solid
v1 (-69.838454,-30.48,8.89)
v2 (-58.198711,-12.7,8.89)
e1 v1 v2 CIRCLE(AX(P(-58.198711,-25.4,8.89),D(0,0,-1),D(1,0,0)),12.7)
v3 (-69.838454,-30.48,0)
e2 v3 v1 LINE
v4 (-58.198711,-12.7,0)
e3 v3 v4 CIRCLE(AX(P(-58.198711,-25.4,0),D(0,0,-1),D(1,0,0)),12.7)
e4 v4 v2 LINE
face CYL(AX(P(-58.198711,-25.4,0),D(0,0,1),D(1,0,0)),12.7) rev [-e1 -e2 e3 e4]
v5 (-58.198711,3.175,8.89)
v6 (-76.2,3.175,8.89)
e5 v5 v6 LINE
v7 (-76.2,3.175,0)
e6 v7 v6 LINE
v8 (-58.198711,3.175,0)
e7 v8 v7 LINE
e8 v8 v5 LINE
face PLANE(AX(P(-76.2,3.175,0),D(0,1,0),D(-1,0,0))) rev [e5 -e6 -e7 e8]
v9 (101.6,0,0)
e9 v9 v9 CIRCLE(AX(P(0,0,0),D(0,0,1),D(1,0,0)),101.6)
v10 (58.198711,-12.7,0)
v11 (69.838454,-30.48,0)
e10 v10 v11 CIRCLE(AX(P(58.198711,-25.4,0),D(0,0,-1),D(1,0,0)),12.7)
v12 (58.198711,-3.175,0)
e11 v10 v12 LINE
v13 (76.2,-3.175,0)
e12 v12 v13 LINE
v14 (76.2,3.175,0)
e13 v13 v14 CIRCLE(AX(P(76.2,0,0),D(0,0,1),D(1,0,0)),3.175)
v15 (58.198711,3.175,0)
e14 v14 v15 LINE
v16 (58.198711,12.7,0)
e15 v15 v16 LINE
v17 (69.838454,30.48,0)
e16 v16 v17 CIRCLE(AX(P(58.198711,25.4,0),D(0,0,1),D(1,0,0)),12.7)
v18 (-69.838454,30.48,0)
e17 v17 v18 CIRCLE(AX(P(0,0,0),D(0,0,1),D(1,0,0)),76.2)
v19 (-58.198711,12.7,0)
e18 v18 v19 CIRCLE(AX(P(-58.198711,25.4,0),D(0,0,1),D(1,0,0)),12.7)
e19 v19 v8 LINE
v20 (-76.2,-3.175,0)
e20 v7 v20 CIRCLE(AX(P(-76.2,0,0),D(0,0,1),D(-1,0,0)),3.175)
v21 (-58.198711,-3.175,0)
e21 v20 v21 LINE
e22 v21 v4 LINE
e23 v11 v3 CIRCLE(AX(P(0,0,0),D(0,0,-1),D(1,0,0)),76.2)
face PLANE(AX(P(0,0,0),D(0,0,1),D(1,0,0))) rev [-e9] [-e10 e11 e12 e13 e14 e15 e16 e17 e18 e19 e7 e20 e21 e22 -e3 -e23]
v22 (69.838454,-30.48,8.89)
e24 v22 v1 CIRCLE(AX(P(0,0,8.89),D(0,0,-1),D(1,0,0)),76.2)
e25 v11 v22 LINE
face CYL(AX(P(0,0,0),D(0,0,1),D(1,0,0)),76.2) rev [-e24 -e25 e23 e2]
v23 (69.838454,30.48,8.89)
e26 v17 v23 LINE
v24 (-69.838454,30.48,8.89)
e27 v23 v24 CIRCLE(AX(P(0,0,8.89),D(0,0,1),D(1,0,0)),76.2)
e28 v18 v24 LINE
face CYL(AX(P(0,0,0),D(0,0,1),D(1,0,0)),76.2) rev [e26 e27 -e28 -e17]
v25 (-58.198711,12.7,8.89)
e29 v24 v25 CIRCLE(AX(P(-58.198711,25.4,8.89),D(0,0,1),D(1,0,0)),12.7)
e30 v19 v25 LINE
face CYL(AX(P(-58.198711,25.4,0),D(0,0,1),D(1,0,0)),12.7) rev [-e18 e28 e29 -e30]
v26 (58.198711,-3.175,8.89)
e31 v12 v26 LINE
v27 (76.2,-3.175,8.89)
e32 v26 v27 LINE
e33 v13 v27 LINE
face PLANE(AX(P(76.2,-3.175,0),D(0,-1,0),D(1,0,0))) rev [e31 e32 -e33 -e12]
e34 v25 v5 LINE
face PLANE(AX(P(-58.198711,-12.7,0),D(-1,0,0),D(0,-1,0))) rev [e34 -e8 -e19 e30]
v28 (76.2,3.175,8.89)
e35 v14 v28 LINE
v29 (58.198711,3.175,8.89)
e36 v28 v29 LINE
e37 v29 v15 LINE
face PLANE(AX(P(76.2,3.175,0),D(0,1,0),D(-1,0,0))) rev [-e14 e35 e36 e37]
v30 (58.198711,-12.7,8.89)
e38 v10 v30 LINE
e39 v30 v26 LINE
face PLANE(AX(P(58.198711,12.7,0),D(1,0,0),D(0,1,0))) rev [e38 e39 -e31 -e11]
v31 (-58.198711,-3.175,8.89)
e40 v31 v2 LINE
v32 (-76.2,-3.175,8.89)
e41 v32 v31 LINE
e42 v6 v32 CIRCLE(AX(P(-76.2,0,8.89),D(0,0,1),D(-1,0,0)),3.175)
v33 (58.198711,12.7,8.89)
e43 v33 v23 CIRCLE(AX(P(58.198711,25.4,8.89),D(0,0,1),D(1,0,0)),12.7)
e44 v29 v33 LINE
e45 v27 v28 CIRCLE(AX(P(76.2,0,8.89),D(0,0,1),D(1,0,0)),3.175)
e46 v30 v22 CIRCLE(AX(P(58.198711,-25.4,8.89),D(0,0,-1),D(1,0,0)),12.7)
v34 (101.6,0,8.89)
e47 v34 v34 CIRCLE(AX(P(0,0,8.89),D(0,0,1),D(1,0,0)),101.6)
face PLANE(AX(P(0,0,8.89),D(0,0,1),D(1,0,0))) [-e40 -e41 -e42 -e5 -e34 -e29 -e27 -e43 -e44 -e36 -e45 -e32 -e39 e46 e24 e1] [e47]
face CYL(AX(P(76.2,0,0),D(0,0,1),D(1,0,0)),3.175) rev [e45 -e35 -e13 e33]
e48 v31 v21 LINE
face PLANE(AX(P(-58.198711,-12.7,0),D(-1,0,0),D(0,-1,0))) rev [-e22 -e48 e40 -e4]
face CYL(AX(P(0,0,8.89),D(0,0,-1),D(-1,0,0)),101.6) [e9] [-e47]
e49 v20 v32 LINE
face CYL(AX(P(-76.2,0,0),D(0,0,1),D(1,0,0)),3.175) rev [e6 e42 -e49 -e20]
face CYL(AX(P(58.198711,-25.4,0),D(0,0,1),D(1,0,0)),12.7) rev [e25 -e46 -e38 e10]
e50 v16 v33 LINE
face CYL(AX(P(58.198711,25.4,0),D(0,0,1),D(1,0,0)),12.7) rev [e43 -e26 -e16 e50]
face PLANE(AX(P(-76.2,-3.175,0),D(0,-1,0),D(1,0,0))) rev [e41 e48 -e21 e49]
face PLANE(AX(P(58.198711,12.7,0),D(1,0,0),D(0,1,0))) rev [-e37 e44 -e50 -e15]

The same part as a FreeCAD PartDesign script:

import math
import FreeCAD as App
import Part
import Sketcher
from FreeCAD import Vector
Q = App.Units.Quantity

doc = App.newDocument("Part")
body = doc.addObject("PartDesign::Body", "Body")

# Sketch on XY plane
sketch1 = body.newObject("Sketcher::SketchObject", "Sketch")
sketch1.AttachmentSupport = (doc.getObject("XY_Plane"), [""])
sketch1.MapMode = "FlatFace"
sketch1.addGeometry(Part.Circle(Vector(0, 0, 0), Vector(0, 0, 1), 102), False)
sketch1.addConstraint([
    Sketcher.Constraint("Coincident", 0, 3, -1, 1),
    Sketcher.Constraint("Diameter", 0, Q("8 in")),
])
pad1 = body.newObject("PartDesign::Pad", "Pad")
pad1.Profile = sketch1
pad1.Length = Q("0.35 in")

# Sketch on XY plane
sketch2 = body.newObject("Sketcher::SketchObject", "Sketch001")
sketch2.AttachmentSupport = (doc.getObject("XY_Plane"), [""])
sketch2.MapMode = "FlatFace"
sketch2.AttachmentOffset = App.Placement(Vector(0, 0, 0.35 * 25.4), App.Rotation())
sketch2.addGeometry(Part.Circle(Vector(0, 0, 0), Vector(0, 0, 1), 25), False)
sketch2.addConstraint([
    Sketcher.Constraint("Coincident", 0, 3, -1, 1),
    Sketcher.Constraint("Diameter", 0, Q("2 in")),
])
pocket1 = body.newObject("PartDesign::Pocket", "Pocket")
pocket1.Profile = sketch2
pocket1.Type = "ThroughAll"

# Sketch on XY plane
sketch3 = body.newObject("Sketcher::SketchObject", "Sketch002")
sketch3.AttachmentSupport = (doc.getObject("XY_Plane"), [""])
sketch3.MapMode = "FlatFace"
sketch3.AttachmentOffset = App.Placement(Vector(0, 0, 0.35 * 25.4), App.Rotation())
sketch3.addGeometry([
    Part.ArcOfCircle(Part.Circle(Vector(0, 0, 0), Vector(0, 0, 1), 76), math.radians(24), math.radians(156)),
    Part.ArcOfCircle(Part.Circle(Vector(-58, 25, 0), Vector(0, 0, 1), 13), math.radians(156), math.radians(336)),
    Part.ArcOfCircle(Part.Circle(Vector(0, 0, 0), Vector(0, 0, 1), 51), math.radians(24), math.radians(156)),
    Part.ArcOfCircle(Part.Circle(Vector(58, 25, 0), Vector(0, 0, 1), 13), math.radians(-156), math.radians(24)),
], False)
sketch3.addConstraint([
    Sketcher.Constraint("Tangent", 0, 2, 1, 1),
    Sketcher.Constraint("Tangent", 1, 2, 2, 2),
    Sketcher.Constraint("Tangent", 2, 1, 3, 1),
    Sketcher.Constraint("Tangent", 3, 2, 0, 1),
    Sketcher.Constraint("Coincident", 0, 3, -1, 1),
    Sketcher.Constraint("Coincident", 2, 3, -1, 1),
    Sketcher.Constraint("Horizontal", 1, 3, 3, 3),
    Sketcher.Constraint("Radius", 0, Q("3 in")),
    Sketcher.Constraint("Radius", 2, Q("2 in")),
    Sketcher.Constraint("DistanceY", -1, 1, 1, 3, Q("1 in")),
])
pocket2 = body.newObject("PartDesign::Pocket", "Pocket001")
pocket2.Profile = sketch3
pocket2.Type = "ThroughAll"
doc.recompute()

mirrored = body.newObject("PartDesign::Mirrored", "Mirrored")
mirrored.Originals = [pocket2]
mirrored.MirrorPlane = (doc.getObject("XZ_Plane"), [""])
body.Tip = mirrored

# Sketch on XY plane
sketch4 = body.newObject("Sketcher::SketchObject", "Sketch003")
sketch4.AttachmentSupport = (doc.getObject("XY_Plane"), [""])
sketch4.MapMode = "FlatFace"
sketch4.AttachmentOffset = App.Placement(Vector(0, 0, 0.35 * 25.4), App.Rotation())
sketch4.addGeometry([
    Part.LineSegment(Vector(25.4, -3.2, 0), Vector(76.2, -3.2, 0)),  # 0
    Part.ArcOfCircle(Part.Circle(Vector(76.2, 0, 0), Vector(0, 0, 1), 3.2), math.radians(-90), math.radians(90)),  # 1
    Part.LineSegment(Vector(76.2, 3.2, 0), Vector(25.4, 3.2, 0)),  # 2
    Part.ArcOfCircle(Part.Circle(Vector(25.4, 0, 0), Vector(0, 0, 1), 3.2), math.radians(90), math.radians(270)),  # 3
    Part.LineSegment(Vector(-76.2, -3.2, 0), Vector(-25.4, -3.2, 0)),  # 4
    Part.ArcOfCircle(Part.Circle(Vector(-25.4, 0, 0), Vector(0, 0, 1), 3.2), math.radians(-90), math.radians(90)),  # 5
    Part.LineSegment(Vector(-25.4, 3.2, 0), Vector(-76.2, 3.2, 0)),  # 6
    Part.ArcOfCircle(Part.Circle(Vector(-76.2, 0, 0), Vector(0, 0, 1), 3.2), math.radians(90), math.radians(270)),  # 7
], False)
sketch4.addConstraint([
    Sketcher.Constraint("Tangent", 0, 2, 1, 1),
    Sketcher.Constraint("Tangent", 1, 2, 2, 1),
    Sketcher.Constraint("Tangent", 2, 2, 3, 1),
    Sketcher.Constraint("Tangent", 3, 2, 0, 1),
    Sketcher.Constraint("Tangent", 4, 2, 5, 1),
    Sketcher.Constraint("Tangent", 5, 2, 6, 1),
    Sketcher.Constraint("Tangent", 6, 2, 7, 1),
    Sketcher.Constraint("Tangent", 7, 2, 4, 1),
    Sketcher.Constraint("Horizontal", 0),
    Sketcher.Constraint("Horizontal", 2),
    Sketcher.Constraint("Horizontal", 4),
    Sketcher.Constraint("Horizontal", 6),
    Sketcher.Constraint("Equal", 3, 5),
    Sketcher.Constraint("Symmetric", 3, 3, 5, 3, -1, 1),
    Sketcher.Constraint("Symmetric", 1, 3, 7, 3, -2),
    Sketcher.Constraint("DistanceX", 0, 1, 0, 2, Q("2 in")),
    Sketcher.Constraint("DistanceX", -1, 1, 1, 3, Q("3 in")),
    Sketcher.Constraint("Radius", 1, Q("0.125 in")),
])
pocket3 = body.newObject("PartDesign::Pocket", "Pocket002")
pocket3.Profile = sketch4
pocket3.Type = "ThroughAll"

# Sketch on XY plane
sketch5 = body.newObject("Sketcher::SketchObject", "Sketch004")
sketch5.AttachmentSupport = (doc.getObject("XY_Plane"), [""])
sketch5.MapMode = "FlatFace"
sketch5.AttachmentOffset = App.Placement(Vector(0, 0, 0.35 * 25.4), App.Rotation())
sketch5.addGeometry([
    Part.LineSegment(Vector(-58, 13, 0), Vector(-58, -13, 0)),  # 0
    Part.ArcOfCircle(Part.Circle(Vector(-58, -25, 0), Vector(0, 0, 1), 13), math.radians(24), math.radians(90)),  # 1
    Part.ArcOfCircle(Part.Circle(Vector(0, 0, 0), Vector(0, 0, 1), 51), math.radians(-156), math.radians(-24)),  # 2
    Part.ArcOfCircle(Part.Circle(Vector(58, -25, 0), Vector(0, 0, 1), 13), math.radians(90), math.radians(156)),  # 3
    Part.LineSegment(Vector(58, -13, 0), Vector(58, 13, 0)),  # 4
    Part.ArcOfCircle(Part.Circle(Vector(58, 25, 0), Vector(0, 0, 1), 13), math.radians(-156), math.radians(-90)),  # 5
    Part.ArcOfCircle(Part.Circle(Vector(0, 0, 0), Vector(0, 0, 1), 51), math.radians(24), math.radians(156)),  # 6
    Part.ArcOfCircle(Part.Circle(Vector(-58, 25, 0), Vector(0, 0, 1), 13), math.radians(-90), math.radians(-24)),  # 7
], False)
sketch5.addConstraint([
    Sketcher.Constraint("Coincident", 0, 2, 1, 2),
    Sketcher.Constraint("Tangent", 1, 1, 2, 1),
    Sketcher.Constraint("Tangent", 2, 2, 3, 2),
    Sketcher.Constraint("Coincident", 3, 1, 4, 1),
    Sketcher.Constraint("Coincident", 4, 2, 5, 2),
    Sketcher.Constraint("Tangent", 5, 1, 6, 1),
    Sketcher.Constraint("Tangent", 6, 2, 7, 2),
    Sketcher.Constraint("Coincident", 7, 1, 0, 1),
    Sketcher.Constraint("Vertical", 0),
    Sketcher.Constraint("Vertical", 4),
    Sketcher.Constraint("Coincident", 2, 3, -1, 1),
    Sketcher.Constraint("Coincident", 6, 3, -1, 1),
    Sketcher.Constraint("Equal", 1, 3),
    Sketcher.Constraint("Equal", 3, 5),
    Sketcher.Constraint("Equal", 2, 6),
    Sketcher.Constraint("Equal", 5, 7),
    Sketcher.Constraint("Symmetric", 0, 2, 4, 2, -1, 1),
    Sketcher.Constraint("Horizontal", 1, 3, 3, 3),
    Sketcher.Constraint("Horizontal", 5, 3, 7, 3),
    Sketcher.Constraint("Vertical", 7, 3, 0, 2),
    Sketcher.Constraint("Radius", 2, Q("2 in")),
    Sketcher.Constraint("Radius", 1, Q("0.5 in")),
    Sketcher.Constraint("DistanceY", 0, 2, 0, 1, Q("1 in")),
])
pocket4 = body.newObject("PartDesign::Pocket", "Pocket003")
pocket4.Profile = sketch5
pocket4.Type = "ThroughAll"

doc.recompute()
